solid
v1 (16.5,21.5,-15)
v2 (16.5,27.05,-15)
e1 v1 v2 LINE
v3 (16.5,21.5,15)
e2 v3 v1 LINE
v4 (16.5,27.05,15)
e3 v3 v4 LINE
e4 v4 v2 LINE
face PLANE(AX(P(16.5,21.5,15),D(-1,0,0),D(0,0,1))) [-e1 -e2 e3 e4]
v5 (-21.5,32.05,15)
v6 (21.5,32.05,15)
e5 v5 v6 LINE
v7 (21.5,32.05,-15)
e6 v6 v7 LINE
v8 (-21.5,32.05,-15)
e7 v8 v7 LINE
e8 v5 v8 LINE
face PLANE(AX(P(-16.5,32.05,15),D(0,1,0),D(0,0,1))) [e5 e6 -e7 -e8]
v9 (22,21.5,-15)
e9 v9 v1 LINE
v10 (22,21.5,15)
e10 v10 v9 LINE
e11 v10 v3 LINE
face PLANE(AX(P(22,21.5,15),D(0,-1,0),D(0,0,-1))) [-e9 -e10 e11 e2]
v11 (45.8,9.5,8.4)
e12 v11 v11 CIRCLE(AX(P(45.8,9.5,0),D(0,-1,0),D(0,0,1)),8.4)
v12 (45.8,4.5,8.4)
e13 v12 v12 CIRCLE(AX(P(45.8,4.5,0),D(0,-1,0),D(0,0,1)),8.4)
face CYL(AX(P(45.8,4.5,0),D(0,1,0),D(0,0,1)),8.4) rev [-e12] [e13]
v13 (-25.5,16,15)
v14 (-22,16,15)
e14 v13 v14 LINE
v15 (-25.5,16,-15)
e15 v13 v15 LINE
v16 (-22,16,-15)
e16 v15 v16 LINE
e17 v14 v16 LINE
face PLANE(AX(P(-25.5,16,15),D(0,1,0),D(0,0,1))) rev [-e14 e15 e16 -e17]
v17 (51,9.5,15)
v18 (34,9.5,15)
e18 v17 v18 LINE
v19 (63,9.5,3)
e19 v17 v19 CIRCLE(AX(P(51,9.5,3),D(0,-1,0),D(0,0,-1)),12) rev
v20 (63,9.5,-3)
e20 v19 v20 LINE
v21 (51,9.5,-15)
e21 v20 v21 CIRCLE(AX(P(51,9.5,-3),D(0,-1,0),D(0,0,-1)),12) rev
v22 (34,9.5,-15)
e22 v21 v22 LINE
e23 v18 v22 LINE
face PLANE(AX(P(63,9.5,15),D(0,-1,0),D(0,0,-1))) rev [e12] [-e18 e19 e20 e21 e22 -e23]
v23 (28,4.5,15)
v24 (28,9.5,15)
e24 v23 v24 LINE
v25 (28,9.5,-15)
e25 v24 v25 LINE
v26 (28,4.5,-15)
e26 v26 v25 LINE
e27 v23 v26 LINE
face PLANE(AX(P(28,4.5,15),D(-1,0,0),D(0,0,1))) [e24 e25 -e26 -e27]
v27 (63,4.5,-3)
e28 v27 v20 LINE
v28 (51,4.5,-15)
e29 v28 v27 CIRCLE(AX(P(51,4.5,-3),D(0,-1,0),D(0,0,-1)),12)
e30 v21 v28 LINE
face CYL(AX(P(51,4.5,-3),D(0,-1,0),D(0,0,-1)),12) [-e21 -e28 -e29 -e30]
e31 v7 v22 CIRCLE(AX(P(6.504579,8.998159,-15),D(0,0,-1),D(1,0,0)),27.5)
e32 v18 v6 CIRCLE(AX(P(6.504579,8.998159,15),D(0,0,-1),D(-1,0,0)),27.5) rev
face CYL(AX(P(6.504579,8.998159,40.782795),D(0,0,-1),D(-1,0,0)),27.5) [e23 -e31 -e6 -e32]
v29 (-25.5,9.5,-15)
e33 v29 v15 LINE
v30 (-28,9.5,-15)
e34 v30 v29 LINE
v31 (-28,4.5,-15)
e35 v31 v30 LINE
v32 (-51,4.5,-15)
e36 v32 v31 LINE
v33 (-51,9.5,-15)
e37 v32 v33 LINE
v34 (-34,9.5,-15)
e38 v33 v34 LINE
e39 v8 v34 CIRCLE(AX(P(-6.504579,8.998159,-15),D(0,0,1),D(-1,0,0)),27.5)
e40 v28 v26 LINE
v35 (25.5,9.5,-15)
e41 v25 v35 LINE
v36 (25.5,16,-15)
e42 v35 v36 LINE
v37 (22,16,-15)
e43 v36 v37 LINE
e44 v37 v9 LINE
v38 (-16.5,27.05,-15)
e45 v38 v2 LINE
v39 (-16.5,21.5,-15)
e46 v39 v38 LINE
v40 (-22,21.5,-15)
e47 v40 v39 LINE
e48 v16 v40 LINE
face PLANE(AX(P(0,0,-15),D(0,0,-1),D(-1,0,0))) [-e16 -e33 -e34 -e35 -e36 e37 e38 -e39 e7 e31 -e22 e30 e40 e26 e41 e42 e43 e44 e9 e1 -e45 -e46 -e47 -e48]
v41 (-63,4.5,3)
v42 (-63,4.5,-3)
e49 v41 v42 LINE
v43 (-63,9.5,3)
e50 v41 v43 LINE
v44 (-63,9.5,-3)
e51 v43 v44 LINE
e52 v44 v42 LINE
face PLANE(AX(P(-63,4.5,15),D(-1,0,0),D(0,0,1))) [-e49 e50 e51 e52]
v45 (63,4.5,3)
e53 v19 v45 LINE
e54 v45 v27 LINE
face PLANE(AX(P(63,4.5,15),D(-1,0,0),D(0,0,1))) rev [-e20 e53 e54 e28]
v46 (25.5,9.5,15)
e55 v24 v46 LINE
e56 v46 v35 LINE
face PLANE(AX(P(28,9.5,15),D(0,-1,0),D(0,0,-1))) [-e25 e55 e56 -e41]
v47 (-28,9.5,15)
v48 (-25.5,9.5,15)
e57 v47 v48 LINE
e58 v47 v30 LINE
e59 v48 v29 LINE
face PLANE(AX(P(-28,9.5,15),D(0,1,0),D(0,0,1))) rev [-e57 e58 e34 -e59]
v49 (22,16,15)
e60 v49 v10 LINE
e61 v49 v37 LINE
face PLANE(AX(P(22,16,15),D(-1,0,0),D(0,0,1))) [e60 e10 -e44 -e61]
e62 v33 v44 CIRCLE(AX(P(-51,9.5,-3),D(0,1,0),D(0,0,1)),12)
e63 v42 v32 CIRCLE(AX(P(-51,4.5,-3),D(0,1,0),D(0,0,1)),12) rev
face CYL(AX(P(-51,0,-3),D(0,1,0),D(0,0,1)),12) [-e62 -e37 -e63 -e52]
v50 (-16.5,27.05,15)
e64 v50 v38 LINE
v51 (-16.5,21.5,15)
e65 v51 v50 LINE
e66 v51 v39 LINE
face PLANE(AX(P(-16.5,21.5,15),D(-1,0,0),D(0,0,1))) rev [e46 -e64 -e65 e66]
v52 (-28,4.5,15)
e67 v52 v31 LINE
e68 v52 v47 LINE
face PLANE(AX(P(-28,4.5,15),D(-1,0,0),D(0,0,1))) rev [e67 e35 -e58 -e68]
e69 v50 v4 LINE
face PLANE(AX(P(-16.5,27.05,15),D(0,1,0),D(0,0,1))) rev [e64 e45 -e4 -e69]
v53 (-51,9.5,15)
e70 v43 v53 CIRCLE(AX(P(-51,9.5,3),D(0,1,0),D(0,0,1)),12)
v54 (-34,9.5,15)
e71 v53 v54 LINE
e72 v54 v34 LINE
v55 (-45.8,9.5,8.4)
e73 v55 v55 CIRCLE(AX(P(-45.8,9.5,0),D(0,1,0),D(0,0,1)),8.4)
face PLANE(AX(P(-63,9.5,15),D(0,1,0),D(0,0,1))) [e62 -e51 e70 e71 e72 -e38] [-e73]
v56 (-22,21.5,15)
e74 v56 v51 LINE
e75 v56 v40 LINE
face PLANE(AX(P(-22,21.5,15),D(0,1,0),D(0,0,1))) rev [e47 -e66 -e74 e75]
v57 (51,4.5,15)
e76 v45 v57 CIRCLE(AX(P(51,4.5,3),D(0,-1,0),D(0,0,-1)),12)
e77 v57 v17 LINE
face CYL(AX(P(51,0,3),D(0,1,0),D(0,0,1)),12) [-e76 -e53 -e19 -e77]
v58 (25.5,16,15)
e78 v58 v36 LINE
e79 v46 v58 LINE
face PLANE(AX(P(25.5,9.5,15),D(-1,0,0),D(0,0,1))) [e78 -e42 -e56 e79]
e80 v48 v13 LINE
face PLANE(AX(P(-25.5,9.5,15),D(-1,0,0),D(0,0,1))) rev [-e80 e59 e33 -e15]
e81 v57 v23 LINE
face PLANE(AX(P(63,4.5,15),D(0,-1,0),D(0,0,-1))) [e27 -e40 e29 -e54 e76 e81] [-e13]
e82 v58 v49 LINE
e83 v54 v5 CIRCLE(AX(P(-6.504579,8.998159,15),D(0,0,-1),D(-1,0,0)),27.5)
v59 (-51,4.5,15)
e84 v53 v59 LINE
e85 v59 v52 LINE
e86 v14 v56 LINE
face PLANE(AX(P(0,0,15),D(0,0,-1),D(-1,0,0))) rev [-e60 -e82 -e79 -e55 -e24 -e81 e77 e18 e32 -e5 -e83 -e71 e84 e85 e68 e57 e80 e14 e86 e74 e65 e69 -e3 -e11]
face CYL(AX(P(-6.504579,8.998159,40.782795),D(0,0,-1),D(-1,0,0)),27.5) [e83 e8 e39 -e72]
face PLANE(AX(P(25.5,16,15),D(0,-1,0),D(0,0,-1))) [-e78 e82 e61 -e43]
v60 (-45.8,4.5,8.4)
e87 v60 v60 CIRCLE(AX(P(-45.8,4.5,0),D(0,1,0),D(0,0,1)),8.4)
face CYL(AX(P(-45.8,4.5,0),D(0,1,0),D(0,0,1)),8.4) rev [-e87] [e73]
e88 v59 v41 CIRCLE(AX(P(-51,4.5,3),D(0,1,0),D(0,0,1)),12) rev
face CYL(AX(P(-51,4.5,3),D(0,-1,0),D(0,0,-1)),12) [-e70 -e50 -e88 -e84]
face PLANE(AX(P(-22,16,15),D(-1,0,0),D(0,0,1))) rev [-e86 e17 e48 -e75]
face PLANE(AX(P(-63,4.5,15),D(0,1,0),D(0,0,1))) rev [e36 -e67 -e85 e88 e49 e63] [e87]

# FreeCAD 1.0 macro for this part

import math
import FreeCAD as App
import Part
import Sketcher
from FreeCAD import Vector
Q = App.Units.Quantity


def edges_at(feature, points):
    """Names of the edges that pass closest to the given points."""
    edges = feature.Shape.Edges
    near = lambda p: min(range(len(edges)), key=lambda i: edges[i].distToShape(Part.Vertex(*p))[0])
    return sorted({f"Edge{near(p) + 1}" for p in points})


def add_polygon(sketch, points):
    """Adds a closed chain of lines whose ends are joined by coincident constraints."""
    first, n = sketch.GeometryCount, len(points)
    for a, b in zip(points, points[1:] + points[:1]):
        sketch.addGeometry(Part.LineSegment(App.Vector(*a, 0), App.Vector(*b, 0)), False)
    for i in range(n):
        sketch.addConstraint(Sketcher.Constraint("Coincident", first + i, 2, first + (i + 1) % n, 1))

doc = App.newDocument("Part")
body = doc.addObject("PartDesign::Body", "Body")

sketch1 = body.newObject("Sketcher::SketchObject", "Sketch")
sketch1.AttachmentSupport = (doc.getObject("XY_Plane"), [""])
sketch1.MapMode = "FlatFace"
add_polygon(sketch1, [(-63, 4.5), (-28, 4.5), (-28, 9.5), (-25.5, 9.5), (-25.5, 16), (-22, 16), (-22, 21.5), (-16.5, 21.5), (-16.5, 27.1), (0, 27.1), (0, 32), (-21.5, 32), (-21.5, 26.5), (-27, 26.5), (-27, 21), (-30.5, 21), (-30.5, 14.5), (-33, 14.5), (-33, 9.5), (-63, 9.5)])
sketch1.addConstraint(Sketcher.Constraint("Horizontal", 0))
sketch1.addConstraint(Sketcher.Constraint("Vertical", 1))
sketch1.addConstraint(Sketcher.Constraint("Horizontal", 2))
sketch1.addConstraint(Sketcher.Constraint("Vertical", 3))
sketch1.addConstraint(Sketcher.Constraint("Horizontal", 4))
sketch1.addConstraint(Sketcher.Constraint("Vertical", 5))
sketch1.addConstraint(Sketcher.Constraint("Horizontal", 6))
sketch1.addConstraint(Sketcher.Constraint("Vertical", 7))
sketch1.addConstraint(Sketcher.Constraint("Horizontal", 8))
sketch1.addConstraint(Sketcher.Constraint("Vertical", 9))
sketch1.addConstraint(Sketcher.Constraint("Horizontal", 10))
sketch1.addConstraint(Sketcher.Constraint("Vertical", 11))
sketch1.addConstraint(Sketcher.Constraint("Horizontal", 12))
sketch1.addConstraint(Sketcher.Constraint("Vertical", 13))
sketch1.addConstraint(Sketcher.Constraint("Horizontal", 14))
sketch1.addConstraint(Sketcher.Constraint("Vertical", 15))
sketch1.addConstraint(Sketcher.Constraint("Horizontal", 16))
sketch1.addConstraint(Sketcher.Constraint("Vertical", 17))
sketch1.addConstraint(Sketcher.Constraint("Horizontal", 18))
sketch1.addConstraint(Sketcher.Constraint("Vertical", 19))
sketch1.addConstraint(Sketcher.Constraint("PointOnObject", 8, 2, -2))
sketch1.addConstraint(Sketcher.Constraint("Horizontal", 2, 2, 17, 2))
sketch1.addConstraint(Sketcher.Constraint("Equal", 6, 12))
sketch1.addConstraint(Sketcher.Constraint("Equal", 4, 14))
sketch1.addConstraint(Sketcher.Constraint("Equal", 2, 16))
sketch1.addConstraint(Sketcher.Constraint("Equal", 12, 5))
sketch1.addConstraint(Sketcher.Constraint("Equal", 1, 9))
sketch1.addConstraint(Sketcher.Constraint("Equal", 7, 11))
sketch1.addConstraint(Sketcher.Constraint("Equal", 5, 13))
sketch1.addConstraint(Sketcher.Constraint("Equal", 3, 15))
sketch1.addConstraint(Sketcher.Constraint("DistanceX", 0, 1, 0, 2, Q("35 mm")))
sketch1.addConstraint(Sketcher.Constraint("DistanceX", 18, 2, 18, 1, Q("30 mm")))
sketch1.addConstraint(Sketcher.Constraint("DistanceY", 1, 1, 1, 2, Q("5 mm")))
sketch1.addConstraint(Sketcher.Constraint("DistanceX", 2, 1, 2, 2, Q("2.5 mm")))
sketch1.addConstraint(Sketcher.Constraint("DistanceX", 4, 1, 4, 2, Q("3.5 mm")))
sketch1.addConstraint(Sketcher.Constraint("DistanceX", 6, 1, 6, 2, Q("5.5 mm")))
sketch1.addConstraint(Sketcher.Constraint("DistanceX", 8, 1, 8, 2, Q("16.5 mm")))
sketch1.addConstraint(Sketcher.Constraint("DistanceY", 3, 1, 3, 2, Q("6.5 mm")))
sketch1.addConstraint(Sketcher.Constraint("DistanceY", -1, 1, 3, 2, Q("16 mm")))
sketch1.addConstraint(Sketcher.Constraint("DistanceY", 7, 1, 7, 2, Q("5.55 mm")))
pad1 = body.newObject("PartDesign::Pad", "Pad")
pad1.Profile = sketch1
pad1.Length = 30
pad1.Midplane = True

sketch2 = body.newObject("Sketcher::SketchObject", "Sketch001")
sketch2.AttachmentSupport = (doc.getObject("XZ_Plane"), [""])
sketch2.MapMode = "FlatFace"
sketch2.AttachmentOffset = App.Placement(Vector(0, 0, -9.5), App.Rotation())
sketch2.addGeometry(Part.Circle(Vector(-46, 0, 0), Vector(0, 0, 1), 8), False)
sketch2.addConstraint(Sketcher.Constraint("PointOnObject", 0, 3, -1))
sketch2.addConstraint(Sketcher.Constraint("Diameter", 0, Q("16.8 mm")))
sketch2.addConstraint(Sketcher.Constraint("DistanceX", 0, 3, -1, 1, Q("45.8 mm")))
pocket1 = body.newObject("PartDesign::Pocket", "Pocket")
pocket1.Profile = sketch2
pocket1.Type = "ThroughAll"
pocket1.Reversed = True
doc.recompute()

fillet = body.newObject("PartDesign::Fillet", "Fillet")
fillet.Base = (pocket1, edges_at(pocket1, [(-63, 7, -15), (-63, 7, 15)]))
fillet.Radius = 12
doc.recompute()

mirrored = body.newObject("PartDesign::Mirrored", "Mirrored")
mirrored.Originals = [pad1, pocket1]
mirrored.MirrorPlane = (doc.getObject("YZ_Plane"), [""])
body.Tip = mirrored
doc.recompute()

fillet2 = body.newObject("PartDesign::Fillet", "Fillet001")
fillet2.Base = (mirrored, edges_at(mirrored, [(63, 7, -15), (63, 7, 15)]))
fillet2.Radius = 12

sketch3 = body.newObject("Sketcher::SketchObject", "Sketch002")
sketch3.AttachmentSupport = (doc.getObject("XY_Plane"), [""])
sketch3.MapMode = "FlatFace"
sketch3.AttachmentOffset = App.Placement(Vector(0, 0, -15), App.Rotation())
sketch3.addGeometry(Part.LineSegment(Vector(34, 9.5, 0), Vector(33, 9.5, 0)), False)
sketch3.addGeometry(Part.LineSegment(Vector(33, 9.5, 0), Vector(33, 14.5, 0)), False)
sketch3.addGeometry(Part.LineSegment(Vector(33, 14.5, 0), Vector(30.5, 14.5, 0)), False)
sketch3.addGeometry(Part.LineSegment(Vector(30.5, 14.5, 0), Vector(30.5, 21, 0)), False)
sketch3.addGeometry(Part.LineSegment(Vector(30.5, 21, 0), Vector(27, 21, 0)), False)
sketch3.addGeometry(Part.LineSegment(Vector(27, 21, 0), Vector(27, 26.5, 0)), False)
sketch3.addGeometry(Part.LineSegment(Vector(27, 26.5, 0), Vector(21.5, 26.5, 0)), False)
sketch3.addGeometry(Part.LineSegment(Vector(21.5, 26.5, 0), Vector(21.5, 32, 0)), False)
sketch3.addGeometry(Part.ArcOfCircle(Part.Circle(Vector(6.5, 9, 0), Vector(0, 0, 1), 27.5), math.radians(1), math.radians(57)), False)
sketch3.addConstraint(Sketcher.Constraint("Coincident", 0, 2, 1, 1))
sketch3.addConstraint(Sketcher.Constraint("Coincident", 1, 2, 2, 1))
sketch3.addConstraint(Sketcher.Constraint("Coincident", 2, 2, 3, 1))
sketch3.addConstraint(Sketcher.Constraint("Coincident", 3, 2, 4, 1))
sketch3.addConstraint(Sketcher.Constraint("Coincident", 4, 2, 5, 1))
sketch3.addConstraint(Sketcher.Constraint("Coincident", 5, 2, 6, 1))
sketch3.addConstraint(Sketcher.Constraint("Coincident", 6, 2, 7, 1))
sketch3.addConstraint(Sketcher.Constraint("Coincident", 7, 2, 8, 2))
sketch3.addConstraint(Sketcher.Constraint("Coincident", 8, 1, 0, 1))
sketch3.addConstraint(Sketcher.Constraint("Horizontal", 0))
sketch3.addConstraint(Sketcher.Constraint("Vertical", 1))
sketch3.addConstraint(Sketcher.Constraint("Horizontal", 2))
sketch3.addConstraint(Sketcher.Constraint("Vertical", 3))
sketch3.addConstraint(Sketcher.Constraint("Horizontal", 4))
sketch3.addConstraint(Sketcher.Constraint("Vertical", 5))
sketch3.addConstraint(Sketcher.Constraint("Horizontal", 6))
sketch3.addConstraint(Sketcher.Constraint("Vertical", 7))
sketch3.addConstraint(Sketcher.Constraint("Equal", 6, 5))
sketch3.addConstraint(Sketcher.Constraint("Radius", 8, Q("27.5 mm")))
sketch3.addConstraint(Sketcher.Constraint("DistanceX", 0, 2, 0, 1, Q("1 mm")))
sketch3.addConstraint(Sketcher.Constraint("DistanceY", 1, 1, 1, 2, Q("5 mm")))
sketch3.addConstraint(Sketcher.Constraint("DistanceX", 2, 2, 2, 1, Q("2.5 mm")))
sketch3.addConstraint(Sketcher.Constraint("DistanceX", 4, 2, 4, 1, Q("3.5 mm")))
sketch3.addConstraint(Sketcher.Constraint("DistanceX", 6, 2, 6, 1, Q("5.5 mm")))
sketch3.addConstraint(Sketcher.Constraint("DistanceY", 3, 1, 3, 2, Q("6.5 mm")))
sketch3.addConstraint(Sketcher.Constraint("DistanceX", -1, 1, 0, 2, Q("33 mm")))
sketch3.addConstraint(Sketcher.Constraint("DistanceY", -1, 1, 3, 2, Q("21 mm")))
sketch3.addConstraint(Sketcher.Constraint("DistanceY", 7, 1, 7, 2, Q("5.55 mm")))
pad2 = body.newObject("PartDesign::Pad", "Pad001")
pad2.Profile = sketch3
pad2.Length = 30
doc.recompute()

mirrored2 = body.newObject("PartDesign::Mirrored", "Mirrored001")
mirrored2.Originals = [pad2]
mirrored2.MirrorPlane = (doc.getObject("YZ_Plane"), [""])
body.Tip = mirrored2

doc.recompute()
